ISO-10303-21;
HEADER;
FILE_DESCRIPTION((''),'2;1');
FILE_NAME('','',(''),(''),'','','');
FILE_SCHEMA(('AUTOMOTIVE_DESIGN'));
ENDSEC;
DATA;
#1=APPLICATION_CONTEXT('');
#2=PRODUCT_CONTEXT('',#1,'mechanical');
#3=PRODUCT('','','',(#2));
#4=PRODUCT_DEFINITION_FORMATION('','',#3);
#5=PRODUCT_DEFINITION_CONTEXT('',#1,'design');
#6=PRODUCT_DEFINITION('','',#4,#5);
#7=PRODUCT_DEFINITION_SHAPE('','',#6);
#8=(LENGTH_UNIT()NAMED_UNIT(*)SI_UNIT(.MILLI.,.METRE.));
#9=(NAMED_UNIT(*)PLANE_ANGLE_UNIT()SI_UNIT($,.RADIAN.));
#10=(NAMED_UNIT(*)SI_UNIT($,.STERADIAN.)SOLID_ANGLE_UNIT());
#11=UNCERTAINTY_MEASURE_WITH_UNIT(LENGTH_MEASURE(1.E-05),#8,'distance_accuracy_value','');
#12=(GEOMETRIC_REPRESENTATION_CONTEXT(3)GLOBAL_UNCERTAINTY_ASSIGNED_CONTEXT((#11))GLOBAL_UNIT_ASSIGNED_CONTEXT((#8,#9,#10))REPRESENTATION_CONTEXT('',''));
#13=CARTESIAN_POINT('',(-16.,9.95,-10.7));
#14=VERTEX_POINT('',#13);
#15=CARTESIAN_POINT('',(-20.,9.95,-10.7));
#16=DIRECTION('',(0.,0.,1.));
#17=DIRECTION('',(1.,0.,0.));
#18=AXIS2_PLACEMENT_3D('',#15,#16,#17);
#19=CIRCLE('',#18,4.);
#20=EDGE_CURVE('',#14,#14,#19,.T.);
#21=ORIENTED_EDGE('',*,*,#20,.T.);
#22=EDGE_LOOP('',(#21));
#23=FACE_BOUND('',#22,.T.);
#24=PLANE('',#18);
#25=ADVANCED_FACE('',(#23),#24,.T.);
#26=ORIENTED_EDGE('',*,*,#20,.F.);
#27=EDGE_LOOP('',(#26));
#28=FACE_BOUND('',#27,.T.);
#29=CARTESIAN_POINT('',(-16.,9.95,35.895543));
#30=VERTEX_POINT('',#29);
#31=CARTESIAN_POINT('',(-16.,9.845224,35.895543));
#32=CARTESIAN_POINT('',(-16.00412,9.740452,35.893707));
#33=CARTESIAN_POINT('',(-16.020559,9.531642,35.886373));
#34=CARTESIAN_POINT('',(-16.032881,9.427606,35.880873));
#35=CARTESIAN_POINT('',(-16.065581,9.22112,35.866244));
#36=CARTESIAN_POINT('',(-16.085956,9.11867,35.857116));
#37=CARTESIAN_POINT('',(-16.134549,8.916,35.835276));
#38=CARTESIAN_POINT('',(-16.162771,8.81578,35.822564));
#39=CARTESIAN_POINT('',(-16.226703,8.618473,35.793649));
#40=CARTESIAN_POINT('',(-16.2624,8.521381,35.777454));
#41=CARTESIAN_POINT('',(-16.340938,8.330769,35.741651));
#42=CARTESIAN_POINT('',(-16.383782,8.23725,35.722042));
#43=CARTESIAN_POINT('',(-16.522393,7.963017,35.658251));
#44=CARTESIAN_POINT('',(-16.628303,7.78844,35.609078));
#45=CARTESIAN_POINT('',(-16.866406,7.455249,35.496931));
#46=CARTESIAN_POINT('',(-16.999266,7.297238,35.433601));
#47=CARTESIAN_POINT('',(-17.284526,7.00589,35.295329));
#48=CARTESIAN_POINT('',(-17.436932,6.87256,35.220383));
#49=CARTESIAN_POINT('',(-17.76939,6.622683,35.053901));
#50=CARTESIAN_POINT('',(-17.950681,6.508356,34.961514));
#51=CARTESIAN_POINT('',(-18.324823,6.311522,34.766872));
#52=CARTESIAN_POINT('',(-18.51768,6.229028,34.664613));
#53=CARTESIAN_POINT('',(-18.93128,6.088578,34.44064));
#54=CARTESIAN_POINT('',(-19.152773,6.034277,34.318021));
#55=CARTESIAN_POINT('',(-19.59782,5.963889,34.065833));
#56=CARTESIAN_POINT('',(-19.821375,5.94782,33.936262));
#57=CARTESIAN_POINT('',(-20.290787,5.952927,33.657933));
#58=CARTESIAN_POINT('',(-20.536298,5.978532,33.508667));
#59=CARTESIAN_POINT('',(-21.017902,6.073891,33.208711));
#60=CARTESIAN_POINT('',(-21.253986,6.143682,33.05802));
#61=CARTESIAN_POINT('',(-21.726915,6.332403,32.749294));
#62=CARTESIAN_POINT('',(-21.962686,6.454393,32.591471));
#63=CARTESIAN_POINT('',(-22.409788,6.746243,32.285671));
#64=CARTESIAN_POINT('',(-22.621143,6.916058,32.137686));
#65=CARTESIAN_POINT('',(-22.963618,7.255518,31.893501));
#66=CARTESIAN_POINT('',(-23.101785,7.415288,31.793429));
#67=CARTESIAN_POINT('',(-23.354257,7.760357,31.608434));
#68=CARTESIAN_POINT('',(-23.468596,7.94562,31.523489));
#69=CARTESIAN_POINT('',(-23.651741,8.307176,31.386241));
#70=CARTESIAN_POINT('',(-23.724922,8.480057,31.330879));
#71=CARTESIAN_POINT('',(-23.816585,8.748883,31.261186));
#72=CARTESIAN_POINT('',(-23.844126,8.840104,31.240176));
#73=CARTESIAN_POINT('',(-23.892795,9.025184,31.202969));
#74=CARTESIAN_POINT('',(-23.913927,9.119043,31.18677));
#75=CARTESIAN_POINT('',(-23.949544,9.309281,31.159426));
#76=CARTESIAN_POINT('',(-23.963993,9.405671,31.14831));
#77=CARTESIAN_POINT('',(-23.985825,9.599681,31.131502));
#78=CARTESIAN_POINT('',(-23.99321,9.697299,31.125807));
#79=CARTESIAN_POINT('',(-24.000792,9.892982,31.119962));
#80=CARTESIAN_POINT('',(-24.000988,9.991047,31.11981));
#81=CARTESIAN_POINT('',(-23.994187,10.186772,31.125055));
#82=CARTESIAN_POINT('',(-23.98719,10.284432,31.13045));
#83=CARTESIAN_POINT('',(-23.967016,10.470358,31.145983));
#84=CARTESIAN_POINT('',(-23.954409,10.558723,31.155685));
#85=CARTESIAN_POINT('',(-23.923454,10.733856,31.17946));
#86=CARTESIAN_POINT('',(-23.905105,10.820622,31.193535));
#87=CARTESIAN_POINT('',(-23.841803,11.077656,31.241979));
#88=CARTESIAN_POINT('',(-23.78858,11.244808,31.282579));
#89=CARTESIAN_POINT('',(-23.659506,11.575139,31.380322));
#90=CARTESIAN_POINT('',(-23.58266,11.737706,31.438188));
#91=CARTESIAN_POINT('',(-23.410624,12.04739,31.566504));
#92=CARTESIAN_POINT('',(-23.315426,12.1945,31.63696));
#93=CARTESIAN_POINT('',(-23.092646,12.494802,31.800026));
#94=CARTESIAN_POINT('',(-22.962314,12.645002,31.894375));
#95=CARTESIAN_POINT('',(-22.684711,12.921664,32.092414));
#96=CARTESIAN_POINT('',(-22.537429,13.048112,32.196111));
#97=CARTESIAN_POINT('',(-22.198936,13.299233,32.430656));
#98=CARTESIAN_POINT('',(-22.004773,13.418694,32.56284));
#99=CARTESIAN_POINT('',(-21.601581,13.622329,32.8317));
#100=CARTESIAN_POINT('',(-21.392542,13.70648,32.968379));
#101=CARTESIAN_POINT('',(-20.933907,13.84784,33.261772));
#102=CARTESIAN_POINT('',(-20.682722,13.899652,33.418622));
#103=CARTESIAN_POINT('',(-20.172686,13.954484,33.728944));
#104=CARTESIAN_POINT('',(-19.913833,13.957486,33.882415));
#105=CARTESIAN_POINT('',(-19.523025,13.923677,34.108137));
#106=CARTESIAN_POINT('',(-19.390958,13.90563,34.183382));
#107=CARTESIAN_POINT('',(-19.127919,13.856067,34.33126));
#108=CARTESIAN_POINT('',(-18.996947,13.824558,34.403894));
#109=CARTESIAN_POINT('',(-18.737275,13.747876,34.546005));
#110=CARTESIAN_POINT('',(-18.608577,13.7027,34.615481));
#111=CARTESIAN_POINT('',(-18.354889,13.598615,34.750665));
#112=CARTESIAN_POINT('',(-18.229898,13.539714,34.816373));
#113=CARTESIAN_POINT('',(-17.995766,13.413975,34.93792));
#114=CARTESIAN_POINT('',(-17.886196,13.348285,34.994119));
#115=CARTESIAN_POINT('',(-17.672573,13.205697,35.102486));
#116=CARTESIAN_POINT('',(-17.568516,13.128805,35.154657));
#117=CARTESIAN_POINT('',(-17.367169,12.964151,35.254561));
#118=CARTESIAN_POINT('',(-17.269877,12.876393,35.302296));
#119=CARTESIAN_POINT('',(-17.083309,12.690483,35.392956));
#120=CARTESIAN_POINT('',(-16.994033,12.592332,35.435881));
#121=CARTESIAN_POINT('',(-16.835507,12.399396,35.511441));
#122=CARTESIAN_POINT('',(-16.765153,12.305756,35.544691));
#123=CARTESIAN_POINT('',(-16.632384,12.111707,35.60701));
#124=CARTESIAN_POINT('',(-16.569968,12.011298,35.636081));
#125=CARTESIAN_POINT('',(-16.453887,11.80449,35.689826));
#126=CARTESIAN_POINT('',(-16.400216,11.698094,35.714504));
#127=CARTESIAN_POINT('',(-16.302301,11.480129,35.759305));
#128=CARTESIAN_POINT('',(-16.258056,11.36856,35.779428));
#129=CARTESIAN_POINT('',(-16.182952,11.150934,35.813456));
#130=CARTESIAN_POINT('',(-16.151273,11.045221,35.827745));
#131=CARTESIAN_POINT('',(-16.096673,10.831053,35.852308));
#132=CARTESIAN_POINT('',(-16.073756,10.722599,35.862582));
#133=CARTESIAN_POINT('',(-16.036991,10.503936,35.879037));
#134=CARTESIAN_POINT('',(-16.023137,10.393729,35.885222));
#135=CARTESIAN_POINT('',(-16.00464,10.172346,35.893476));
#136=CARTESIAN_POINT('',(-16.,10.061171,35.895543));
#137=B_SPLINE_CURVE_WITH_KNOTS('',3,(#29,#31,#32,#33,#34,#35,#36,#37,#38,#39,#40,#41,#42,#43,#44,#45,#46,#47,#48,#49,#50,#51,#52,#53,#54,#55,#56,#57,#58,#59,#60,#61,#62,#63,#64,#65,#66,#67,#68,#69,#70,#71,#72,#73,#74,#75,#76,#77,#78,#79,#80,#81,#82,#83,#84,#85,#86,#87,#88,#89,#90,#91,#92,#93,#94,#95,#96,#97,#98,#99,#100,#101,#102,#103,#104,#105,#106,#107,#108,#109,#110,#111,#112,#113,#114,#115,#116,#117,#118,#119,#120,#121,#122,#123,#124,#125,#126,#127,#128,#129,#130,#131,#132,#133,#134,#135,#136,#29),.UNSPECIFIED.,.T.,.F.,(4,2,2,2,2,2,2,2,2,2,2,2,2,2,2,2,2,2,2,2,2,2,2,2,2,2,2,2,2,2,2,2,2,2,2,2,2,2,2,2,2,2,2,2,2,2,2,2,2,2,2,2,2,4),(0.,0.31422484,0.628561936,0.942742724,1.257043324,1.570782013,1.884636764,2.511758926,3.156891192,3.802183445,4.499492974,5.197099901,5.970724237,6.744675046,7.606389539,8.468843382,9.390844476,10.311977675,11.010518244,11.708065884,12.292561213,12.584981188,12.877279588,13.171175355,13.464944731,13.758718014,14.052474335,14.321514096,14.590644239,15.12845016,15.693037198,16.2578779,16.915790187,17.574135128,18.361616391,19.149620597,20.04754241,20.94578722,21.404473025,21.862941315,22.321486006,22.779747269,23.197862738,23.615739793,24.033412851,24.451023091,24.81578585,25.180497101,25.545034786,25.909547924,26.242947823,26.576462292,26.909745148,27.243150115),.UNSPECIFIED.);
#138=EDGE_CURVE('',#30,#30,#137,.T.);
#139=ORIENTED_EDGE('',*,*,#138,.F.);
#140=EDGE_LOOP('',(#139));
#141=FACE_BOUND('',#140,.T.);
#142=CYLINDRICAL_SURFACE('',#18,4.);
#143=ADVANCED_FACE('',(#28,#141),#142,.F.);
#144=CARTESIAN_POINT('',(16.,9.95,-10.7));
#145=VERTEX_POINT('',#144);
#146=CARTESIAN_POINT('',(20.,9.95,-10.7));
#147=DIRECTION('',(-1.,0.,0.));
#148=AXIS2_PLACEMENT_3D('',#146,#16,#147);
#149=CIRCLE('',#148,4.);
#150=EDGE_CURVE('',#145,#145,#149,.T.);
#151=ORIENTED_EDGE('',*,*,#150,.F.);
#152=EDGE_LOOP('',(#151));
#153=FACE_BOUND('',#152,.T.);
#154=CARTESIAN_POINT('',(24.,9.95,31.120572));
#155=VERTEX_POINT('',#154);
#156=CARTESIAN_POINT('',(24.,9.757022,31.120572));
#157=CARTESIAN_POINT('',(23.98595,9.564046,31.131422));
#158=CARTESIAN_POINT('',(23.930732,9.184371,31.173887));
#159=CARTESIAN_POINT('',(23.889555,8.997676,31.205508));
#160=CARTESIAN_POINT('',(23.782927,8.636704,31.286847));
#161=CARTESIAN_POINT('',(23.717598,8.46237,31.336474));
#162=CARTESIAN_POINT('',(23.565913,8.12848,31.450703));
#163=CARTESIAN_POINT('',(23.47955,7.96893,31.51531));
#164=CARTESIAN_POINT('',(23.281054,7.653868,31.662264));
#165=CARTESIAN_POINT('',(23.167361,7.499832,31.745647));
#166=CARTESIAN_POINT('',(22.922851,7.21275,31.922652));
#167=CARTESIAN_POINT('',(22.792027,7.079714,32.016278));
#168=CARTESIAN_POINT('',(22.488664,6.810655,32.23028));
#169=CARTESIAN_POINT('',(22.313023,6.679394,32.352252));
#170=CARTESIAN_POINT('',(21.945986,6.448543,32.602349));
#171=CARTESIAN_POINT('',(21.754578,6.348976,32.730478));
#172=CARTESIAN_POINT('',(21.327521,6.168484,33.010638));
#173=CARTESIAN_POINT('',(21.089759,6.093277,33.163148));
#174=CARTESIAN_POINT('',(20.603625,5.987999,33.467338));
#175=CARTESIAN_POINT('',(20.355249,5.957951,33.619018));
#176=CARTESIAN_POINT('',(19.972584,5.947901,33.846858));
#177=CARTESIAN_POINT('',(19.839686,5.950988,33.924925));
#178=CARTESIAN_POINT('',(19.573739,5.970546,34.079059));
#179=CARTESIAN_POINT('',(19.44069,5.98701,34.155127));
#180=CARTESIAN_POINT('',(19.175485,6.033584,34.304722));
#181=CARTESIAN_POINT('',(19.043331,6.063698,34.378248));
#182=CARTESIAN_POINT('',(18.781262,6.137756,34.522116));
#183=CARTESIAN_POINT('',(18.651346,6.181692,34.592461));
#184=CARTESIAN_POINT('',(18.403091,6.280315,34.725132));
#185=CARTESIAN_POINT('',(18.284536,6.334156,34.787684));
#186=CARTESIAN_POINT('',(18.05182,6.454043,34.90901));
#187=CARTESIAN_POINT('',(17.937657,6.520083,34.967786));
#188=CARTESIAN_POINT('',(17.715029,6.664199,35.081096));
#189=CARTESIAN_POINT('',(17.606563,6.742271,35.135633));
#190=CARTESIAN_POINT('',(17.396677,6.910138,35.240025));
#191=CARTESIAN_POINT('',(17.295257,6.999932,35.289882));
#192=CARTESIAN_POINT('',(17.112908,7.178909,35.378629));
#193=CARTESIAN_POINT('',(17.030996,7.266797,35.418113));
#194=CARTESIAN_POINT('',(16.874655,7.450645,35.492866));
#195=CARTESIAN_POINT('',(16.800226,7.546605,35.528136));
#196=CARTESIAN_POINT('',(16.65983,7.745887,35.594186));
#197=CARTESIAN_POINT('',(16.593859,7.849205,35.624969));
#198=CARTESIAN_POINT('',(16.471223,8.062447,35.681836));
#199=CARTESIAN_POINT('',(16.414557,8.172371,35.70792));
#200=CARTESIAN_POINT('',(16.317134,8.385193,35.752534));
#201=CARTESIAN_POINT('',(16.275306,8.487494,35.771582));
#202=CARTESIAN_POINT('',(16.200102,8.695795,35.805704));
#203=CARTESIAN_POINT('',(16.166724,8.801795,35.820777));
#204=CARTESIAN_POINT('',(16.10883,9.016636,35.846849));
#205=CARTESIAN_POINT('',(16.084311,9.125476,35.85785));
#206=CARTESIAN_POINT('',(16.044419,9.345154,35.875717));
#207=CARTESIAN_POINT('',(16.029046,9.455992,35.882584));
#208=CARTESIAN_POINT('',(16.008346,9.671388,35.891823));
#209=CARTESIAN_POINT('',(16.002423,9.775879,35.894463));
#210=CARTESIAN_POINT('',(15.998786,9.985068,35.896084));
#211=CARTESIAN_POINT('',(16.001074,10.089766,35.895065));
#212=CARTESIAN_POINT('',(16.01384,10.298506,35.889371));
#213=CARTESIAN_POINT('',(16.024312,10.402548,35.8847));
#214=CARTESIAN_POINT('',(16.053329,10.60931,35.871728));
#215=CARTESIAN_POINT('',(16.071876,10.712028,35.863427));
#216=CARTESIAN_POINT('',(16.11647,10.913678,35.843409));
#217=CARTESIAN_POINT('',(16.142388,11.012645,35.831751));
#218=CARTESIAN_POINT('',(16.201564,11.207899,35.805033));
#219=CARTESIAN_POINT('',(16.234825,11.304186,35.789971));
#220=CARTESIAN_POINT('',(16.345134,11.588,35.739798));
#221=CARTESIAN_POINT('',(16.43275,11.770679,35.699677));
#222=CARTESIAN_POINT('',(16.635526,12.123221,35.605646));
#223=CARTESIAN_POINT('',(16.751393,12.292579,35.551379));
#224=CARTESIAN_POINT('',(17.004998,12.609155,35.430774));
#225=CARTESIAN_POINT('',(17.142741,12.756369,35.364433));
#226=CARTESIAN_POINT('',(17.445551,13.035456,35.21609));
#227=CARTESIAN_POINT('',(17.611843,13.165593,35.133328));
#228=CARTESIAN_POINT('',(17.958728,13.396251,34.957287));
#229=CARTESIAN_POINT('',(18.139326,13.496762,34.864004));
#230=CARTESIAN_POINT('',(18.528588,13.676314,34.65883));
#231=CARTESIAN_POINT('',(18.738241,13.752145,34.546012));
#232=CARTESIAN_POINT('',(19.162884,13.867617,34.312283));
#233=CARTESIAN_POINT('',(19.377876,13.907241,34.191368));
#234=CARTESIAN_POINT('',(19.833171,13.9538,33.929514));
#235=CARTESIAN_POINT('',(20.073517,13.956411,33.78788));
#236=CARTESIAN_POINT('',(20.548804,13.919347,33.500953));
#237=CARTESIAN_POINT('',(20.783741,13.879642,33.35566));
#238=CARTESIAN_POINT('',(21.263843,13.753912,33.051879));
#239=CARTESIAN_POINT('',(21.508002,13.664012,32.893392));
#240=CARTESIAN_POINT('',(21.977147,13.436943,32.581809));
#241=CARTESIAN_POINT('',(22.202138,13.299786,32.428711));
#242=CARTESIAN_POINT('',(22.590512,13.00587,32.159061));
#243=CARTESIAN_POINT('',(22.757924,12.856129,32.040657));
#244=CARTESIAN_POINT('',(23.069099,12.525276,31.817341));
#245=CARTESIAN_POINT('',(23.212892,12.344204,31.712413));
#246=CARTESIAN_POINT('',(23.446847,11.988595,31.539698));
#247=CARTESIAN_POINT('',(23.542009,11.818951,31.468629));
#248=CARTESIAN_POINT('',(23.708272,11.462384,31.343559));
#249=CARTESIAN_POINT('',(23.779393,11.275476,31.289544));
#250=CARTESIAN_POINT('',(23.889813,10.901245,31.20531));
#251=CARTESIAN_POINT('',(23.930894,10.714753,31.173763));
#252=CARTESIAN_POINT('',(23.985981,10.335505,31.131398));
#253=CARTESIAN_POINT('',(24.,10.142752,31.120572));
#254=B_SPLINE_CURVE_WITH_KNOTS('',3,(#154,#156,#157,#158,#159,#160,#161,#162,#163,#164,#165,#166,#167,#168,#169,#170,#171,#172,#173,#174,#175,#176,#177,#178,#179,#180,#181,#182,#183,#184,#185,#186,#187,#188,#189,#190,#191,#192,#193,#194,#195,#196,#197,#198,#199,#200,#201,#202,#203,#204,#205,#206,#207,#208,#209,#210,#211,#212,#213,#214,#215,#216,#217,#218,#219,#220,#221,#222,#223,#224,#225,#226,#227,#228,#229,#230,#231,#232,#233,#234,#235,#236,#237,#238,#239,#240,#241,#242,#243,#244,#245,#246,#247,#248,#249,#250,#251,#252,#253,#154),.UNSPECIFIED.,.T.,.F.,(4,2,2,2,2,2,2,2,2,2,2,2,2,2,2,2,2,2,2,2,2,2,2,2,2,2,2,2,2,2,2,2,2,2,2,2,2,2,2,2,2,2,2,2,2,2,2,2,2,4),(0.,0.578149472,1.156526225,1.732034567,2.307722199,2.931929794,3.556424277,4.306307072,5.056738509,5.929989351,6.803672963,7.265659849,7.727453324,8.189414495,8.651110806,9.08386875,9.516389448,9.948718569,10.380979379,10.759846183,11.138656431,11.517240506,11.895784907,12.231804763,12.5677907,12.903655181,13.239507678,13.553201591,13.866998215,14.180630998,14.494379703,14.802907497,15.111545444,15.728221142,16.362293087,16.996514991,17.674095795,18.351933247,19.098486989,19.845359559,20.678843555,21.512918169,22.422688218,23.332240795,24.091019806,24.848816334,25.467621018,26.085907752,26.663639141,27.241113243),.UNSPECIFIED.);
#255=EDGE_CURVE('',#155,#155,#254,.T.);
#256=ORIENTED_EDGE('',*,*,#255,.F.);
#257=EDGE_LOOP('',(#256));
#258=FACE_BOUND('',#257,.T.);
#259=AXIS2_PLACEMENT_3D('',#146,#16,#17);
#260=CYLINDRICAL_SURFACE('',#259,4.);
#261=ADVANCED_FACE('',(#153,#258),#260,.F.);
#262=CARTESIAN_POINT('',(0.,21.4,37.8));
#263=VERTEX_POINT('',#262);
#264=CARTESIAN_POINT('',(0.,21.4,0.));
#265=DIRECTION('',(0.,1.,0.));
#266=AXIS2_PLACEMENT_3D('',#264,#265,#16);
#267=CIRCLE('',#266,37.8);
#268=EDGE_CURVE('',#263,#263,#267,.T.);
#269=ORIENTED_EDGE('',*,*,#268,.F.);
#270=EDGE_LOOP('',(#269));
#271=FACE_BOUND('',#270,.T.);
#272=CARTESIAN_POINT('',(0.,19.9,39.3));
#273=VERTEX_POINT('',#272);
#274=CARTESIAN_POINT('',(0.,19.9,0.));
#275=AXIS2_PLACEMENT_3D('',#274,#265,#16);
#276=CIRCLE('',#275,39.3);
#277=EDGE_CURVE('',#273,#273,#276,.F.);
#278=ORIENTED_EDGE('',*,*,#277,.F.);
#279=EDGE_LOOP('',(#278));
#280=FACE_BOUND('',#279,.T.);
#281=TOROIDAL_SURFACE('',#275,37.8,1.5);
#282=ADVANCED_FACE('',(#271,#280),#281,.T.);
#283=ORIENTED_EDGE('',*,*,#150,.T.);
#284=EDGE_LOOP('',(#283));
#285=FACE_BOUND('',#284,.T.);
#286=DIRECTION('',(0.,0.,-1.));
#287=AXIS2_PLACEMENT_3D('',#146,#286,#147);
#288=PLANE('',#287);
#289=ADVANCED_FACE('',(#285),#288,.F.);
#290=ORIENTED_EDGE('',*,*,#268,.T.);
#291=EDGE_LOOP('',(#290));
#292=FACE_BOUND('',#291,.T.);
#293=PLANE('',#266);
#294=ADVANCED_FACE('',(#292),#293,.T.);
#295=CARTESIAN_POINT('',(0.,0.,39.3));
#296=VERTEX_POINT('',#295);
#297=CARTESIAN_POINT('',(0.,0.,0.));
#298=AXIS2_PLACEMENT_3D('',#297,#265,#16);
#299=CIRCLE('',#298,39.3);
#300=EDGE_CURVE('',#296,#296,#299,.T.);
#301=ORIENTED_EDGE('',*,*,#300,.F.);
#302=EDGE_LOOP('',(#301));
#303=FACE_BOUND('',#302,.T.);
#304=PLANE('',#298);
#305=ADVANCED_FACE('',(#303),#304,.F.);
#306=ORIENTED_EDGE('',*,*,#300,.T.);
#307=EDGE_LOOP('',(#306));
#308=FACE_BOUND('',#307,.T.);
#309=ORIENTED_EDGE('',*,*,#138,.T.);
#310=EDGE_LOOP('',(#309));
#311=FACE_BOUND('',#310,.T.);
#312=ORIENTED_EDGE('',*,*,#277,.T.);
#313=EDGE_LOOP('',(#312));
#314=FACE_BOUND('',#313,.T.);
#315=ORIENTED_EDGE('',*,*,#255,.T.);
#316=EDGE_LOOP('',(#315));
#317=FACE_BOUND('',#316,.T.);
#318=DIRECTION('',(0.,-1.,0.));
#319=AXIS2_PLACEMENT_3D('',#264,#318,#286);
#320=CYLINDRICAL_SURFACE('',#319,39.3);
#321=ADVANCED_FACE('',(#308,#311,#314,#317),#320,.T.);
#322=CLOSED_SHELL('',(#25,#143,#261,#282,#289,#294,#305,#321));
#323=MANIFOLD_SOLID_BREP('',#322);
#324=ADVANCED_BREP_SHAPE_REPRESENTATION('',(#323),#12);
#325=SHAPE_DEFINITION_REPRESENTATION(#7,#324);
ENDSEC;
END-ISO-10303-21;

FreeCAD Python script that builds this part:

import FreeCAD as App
import Part
import Sketcher
Q = App.Units.Quantity


def edges_at(feature, points):
    """Names of the edges that pass closest to the given points."""
    edges = feature.Shape.Edges
    near = lambda p: min(range(len(edges)), key=lambda i: edges[i].distToShape(Part.Vertex(*p))[0])
    return sorted({f"Edge{near(p) + 1}" for p in points})

doc = App.newDocument("Part")
body = doc.addObject("PartDesign::Body", "Body")

sketch1 = doc.addObject("Sketcher::SketchObject", "Sketch")
body.addObject(sketch1)
sketch1.AttachmentSupport = (doc.XZ_Plane, [""])
sketch1.MapMode = "FlatFace"
sketch1.addGeometry(Part.Circle(App.Vector(0, 0, 0), App.Vector(0, 0, 1), 39), False)
sketch1.addConstraint([
    Sketcher.Constraint("Coincident", 0, 3, -1, 1),
    Sketcher.Constraint("Diameter", 0, Q("78.6 mm")),
])
pad1 = doc.addObject("PartDesign::Pad", "Pad")
body.addObject(pad1)
pad1.Profile = sketch1
pad1.Length = 21.4
pad1.Reversed = True
doc.recompute()

fillet = doc.addObject("PartDesign::Fillet", "Fillet")
body.addObject(fillet)
fillet.Base = (pad1, edges_at(pad1, [(-39.3, 21.4, 0)]))
fillet.Radius = 1.5

sketch2 = doc.addObject("Sketcher::SketchObject", "Sketch001")
body.addObject(sketch2)
sketch2.AttachmentSupport = (doc.XY_Plane, [""])
sketch2.MapMode = "FlatFace"
sketch2.AttachmentOffset = App.Placement(App.Vector(0, 0, 39.3), App.Rotation())
sketch2.addGeometry([
    Part.Circle(App.Vector(-20, 9.9, 0), App.Vector(0, 0, 1), 4),
    Part.Circle(App.Vector(20, 9.9, 0), App.Vector(0, 0, 1), 4),
], False)
sketch2.addConstraint([
    Sketcher.Constraint("Equal", 0, 1),
    Sketcher.Constraint("Symmetric", 0, 3, 1, 3, -2),
    Sketcher.Constraint("Diameter", 0, Q("8 mm")),
    Sketcher.Constraint("DistanceX", 0, 3, -1, 1, Q("20 mm")),
    Sketcher.Constraint("DistanceY", -1, 1, 0, 3, Q("9.95 mm")),
])
pocket1 = doc.addObject("PartDesign::Pocket", "Pocket")
body.addObject(pocket1)
pocket1.Profile = sketch2
pocket1.Length = 50

doc.recompute()
